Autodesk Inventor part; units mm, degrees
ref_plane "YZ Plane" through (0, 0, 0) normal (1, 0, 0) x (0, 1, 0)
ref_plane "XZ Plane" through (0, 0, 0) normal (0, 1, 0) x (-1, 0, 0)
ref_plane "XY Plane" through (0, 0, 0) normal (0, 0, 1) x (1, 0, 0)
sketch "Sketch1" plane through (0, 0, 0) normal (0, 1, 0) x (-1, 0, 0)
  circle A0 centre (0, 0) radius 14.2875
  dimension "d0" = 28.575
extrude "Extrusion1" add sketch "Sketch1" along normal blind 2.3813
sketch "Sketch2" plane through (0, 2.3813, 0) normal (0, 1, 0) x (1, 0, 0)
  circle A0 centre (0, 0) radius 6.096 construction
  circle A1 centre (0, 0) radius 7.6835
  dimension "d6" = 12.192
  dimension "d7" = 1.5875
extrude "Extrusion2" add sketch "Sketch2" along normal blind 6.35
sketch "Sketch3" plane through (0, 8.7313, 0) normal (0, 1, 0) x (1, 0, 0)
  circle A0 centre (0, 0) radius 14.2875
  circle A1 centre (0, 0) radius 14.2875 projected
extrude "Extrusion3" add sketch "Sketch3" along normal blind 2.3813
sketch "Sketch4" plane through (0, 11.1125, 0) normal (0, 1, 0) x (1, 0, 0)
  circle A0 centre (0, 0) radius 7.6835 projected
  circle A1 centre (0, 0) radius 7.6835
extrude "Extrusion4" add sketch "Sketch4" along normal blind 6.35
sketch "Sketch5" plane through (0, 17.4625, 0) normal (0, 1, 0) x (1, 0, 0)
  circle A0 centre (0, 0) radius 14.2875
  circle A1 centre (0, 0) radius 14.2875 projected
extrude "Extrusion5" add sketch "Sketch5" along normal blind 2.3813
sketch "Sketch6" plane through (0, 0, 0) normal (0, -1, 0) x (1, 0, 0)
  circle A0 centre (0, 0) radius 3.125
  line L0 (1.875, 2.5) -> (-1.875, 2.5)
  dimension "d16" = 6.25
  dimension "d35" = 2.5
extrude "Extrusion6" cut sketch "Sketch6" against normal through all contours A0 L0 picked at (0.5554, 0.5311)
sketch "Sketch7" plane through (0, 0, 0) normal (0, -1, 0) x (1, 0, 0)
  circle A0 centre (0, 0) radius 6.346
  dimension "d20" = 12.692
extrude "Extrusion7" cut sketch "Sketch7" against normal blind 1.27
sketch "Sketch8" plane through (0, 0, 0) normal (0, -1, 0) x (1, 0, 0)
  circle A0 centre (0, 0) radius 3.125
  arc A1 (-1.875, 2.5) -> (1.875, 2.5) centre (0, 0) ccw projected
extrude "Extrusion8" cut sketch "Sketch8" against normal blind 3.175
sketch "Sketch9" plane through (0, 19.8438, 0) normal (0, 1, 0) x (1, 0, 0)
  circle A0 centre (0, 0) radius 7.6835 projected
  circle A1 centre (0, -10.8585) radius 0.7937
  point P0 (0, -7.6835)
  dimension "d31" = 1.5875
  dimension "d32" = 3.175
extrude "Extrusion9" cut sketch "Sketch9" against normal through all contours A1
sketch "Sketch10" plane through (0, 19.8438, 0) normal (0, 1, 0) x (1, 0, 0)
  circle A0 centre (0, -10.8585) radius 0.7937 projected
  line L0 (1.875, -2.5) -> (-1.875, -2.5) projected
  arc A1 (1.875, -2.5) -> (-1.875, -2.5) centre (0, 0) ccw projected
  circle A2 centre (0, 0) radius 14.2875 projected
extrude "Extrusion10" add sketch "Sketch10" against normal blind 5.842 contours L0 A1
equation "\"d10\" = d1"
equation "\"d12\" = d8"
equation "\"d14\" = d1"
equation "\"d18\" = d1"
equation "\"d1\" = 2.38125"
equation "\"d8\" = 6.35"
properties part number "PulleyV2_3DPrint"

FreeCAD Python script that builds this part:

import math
import FreeCAD as App
import Part
import Sketcher
Q = App.Units.Quantity

doc = App.newDocument("Part")
body = doc.addObject("PartDesign::Body", "Body")

# Sketch on XZ plane
sketch1 = body.newObject("Sketcher::SketchObject", "Sketch")
sketch1.AttachmentSupport = (doc.getObject("XZ_Plane"), [""])
sketch1.MapMode = "FlatFace"
sketch1.addGeometry(Part.Circle(App.Vector(0, 0, 0), App.Vector(0, 0, 1), 14), False)
sketch1.addConstraint(Sketcher.Constraint("Coincident", 0, 3, -1, 1))
sketch1.addConstraint(Sketcher.Constraint("Diameter", 0, Q("1.125 in")))
pad1 = body.newObject("PartDesign::Pad", "Pad")
pad1.Profile = sketch1
pad1.Length = Q("0.093752 in")
pad1.Reversed = True

# Sketch on XZ plane
sketch2 = body.newObject("Sketcher::SketchObject", "Sketch001")
sketch2.AttachmentSupport = (doc.getObject("XZ_Plane"), [""])
sketch2.MapMode = "FlatFace"
sketch2.AttachmentOffset = App.Placement(App.Vector(0, 0, -0.093752 * 25.4), App.Rotation())
sketch2.addGeometry(Part.Circle(App.Vector(0, 0, 0), App.Vector(0, 0, 1), 8), False)
sketch2.addConstraint(Sketcher.Constraint("Coincident", 0, 3, -1, 1))
sketch2.addConstraint(Sketcher.Constraint("Diameter", 0, Q("0.605 in")))
pad2 = body.newObject("PartDesign::Pad", "Pad001")
pad2.Profile = sketch2
pad2.Length = Q("0.25 in")
pad2.Reversed = True

# Sketch on XZ plane
sketch3 = body.newObject("Sketcher::SketchObject", "Sketch002")
sketch3.AttachmentSupport = (doc.getObject("XZ_Plane"), [""])
sketch3.MapMode = "FlatFace"
sketch3.AttachmentOffset = App.Placement(App.Vector(0, 0, -0.343752 * 25.4), App.Rotation())
sketch3.addGeometry(Part.Circle(App.Vector(0, 0, 0), App.Vector(0, 0, 1), 14), False)
sketch3.addConstraint(Sketcher.Constraint("Coincident", 0, 3, -1, 1))
sketch3.addConstraint(Sketcher.Constraint("Diameter", 0, Q("1.125 in")))
pad3 = body.newObject("PartDesign::Pad", "Pad002")
pad3.Profile = sketch3
pad3.Length = Q("0.093752 in")
pad3.Reversed = True

# Sketch on XZ plane
sketch4 = body.newObject("Sketcher::SketchObject", "Sketch003")
sketch4.AttachmentSupport = (doc.getObject("XZ_Plane"), [""])
sketch4.MapMode = "FlatFace"
sketch4.AttachmentOffset = App.Placement(App.Vector(0, 0, -0.4375 * 25.4), App.Rotation())
sketch4.addGeometry(Part.Circle(App.Vector(0, 0, 0), App.Vector(0, 0, 1), 8), False)
sketch4.addConstraint(Sketcher.Constraint("Coincident", 0, 3, -1, 1))
sketch4.addConstraint(Sketcher.Constraint("Diameter", 0, Q("0.605 in")))
pad4 = body.newObject("PartDesign::Pad", "Pad003")
pad4.Profile = sketch4
pad4.Length = Q("0.25 in")
pad4.Reversed = True

# Sketch on XZ plane
sketch5 = body.newObject("Sketcher::SketchObject", "Sketch004")
sketch5.AttachmentSupport = (doc.getObject("XZ_Plane"), [""])
sketch5.MapMode = "FlatFace"
sketch5.AttachmentOffset = App.Placement(App.Vector(0, 0, -0.6875 * 25.4), App.Rotation())
sketch5.addGeometry(Part.Circle(App.Vector(0, 0, 0), App.Vector(0, 0, 1), 14), False)
sketch5.addConstraint(Sketcher.Constraint("Coincident", 0, 3, -1, 1))
sketch5.addConstraint(Sketcher.Constraint("Diameter", 0, Q("1.125 in")))
pad5 = body.newObject("PartDesign::Pad", "Pad004")
pad5.Profile = sketch5
pad5.Length = Q("0.093752 in")
pad5.Reversed = True

# Sketch on XZ plane
sketch6 = body.newObject("Sketcher::SketchObject", "Sketch005")
sketch6.AttachmentSupport = (doc.getObject("XZ_Plane"), [""])
sketch6.MapMode = "FlatFace"
sketch6.addGeometry(Part.ArcOfCircle(Part.Circle(App.Vector(0, 0, 0), App.Vector(0, 0, 1), 3.1), math.radians(127), math.radians(413)), False)
sketch6.addGeometry(Part.LineSegment(App.Vector(1.9, 2.5, 0), App.Vector(-1.9, 2.5, 0)), False)
sketch6.addConstraint(Sketcher.Constraint("Coincident", 0, 1, 1, 2))
sketch6.addConstraint(Sketcher.Constraint("Coincident", 1, 1, 0, 2))
sketch6.addConstraint(Sketcher.Constraint("Horizontal", 1))
sketch6.addConstraint(Sketcher.Constraint("Coincident", 0, 3, -1, 1))
sketch6.addConstraint(Sketcher.Constraint("Radius", 0, Q("3.125 mm")))
sketch6.addConstraint(Sketcher.Constraint("DistanceY", -1, 1, 0, 1, Q("2.5 mm")))
pocket1 = body.newObject("PartDesign::Pocket", "Pocket")
pocket1.Profile = sketch6
pocket1.Type = "ThroughAll"

# Sketch on XZ plane
sketch7 = body.newObject("Sketcher::SketchObject", "Sketch006")
sketch7.AttachmentSupport = (doc.getObject("XZ_Plane"), [""])
sketch7.MapMode = "FlatFace"
sketch7.addGeometry(Part.Circle(App.Vector(0, 0, 0), App.Vector(0, 0, 1), 6), False)
sketch7.addConstraint(Sketcher.Constraint("Coincident", 0, 3, -1, 1))
sketch7.addConstraint(Sketcher.Constraint("Diameter", 0, Q("12.692 mm")))
pocket2 = body.newObject("PartDesign::Pocket", "Pocket001")
pocket2.Profile = sketch7
pocket2.Length = Q("0.05 in")

# Sketch on XZ plane
sketch8 = body.newObject("Sketcher::SketchObject", "Sketch007")
sketch8.AttachmentSupport = (doc.getObject("XZ_Plane"), [""])
sketch8.MapMode = "FlatFace"
sketch8.addGeometry(Part.Circle(App.Vector(0, 0, 0), App.Vector(0, 0, 1), 3.1), False)
sketch8.addConstraint(Sketcher.Constraint("Coincident", 0, 3, -1, 1))
sketch8.addConstraint(Sketcher.Constraint("Diameter", 0, Q("6.25 mm")))
pocket3 = body.newObject("PartDesign::Pocket", "Pocket002")
pocket3.Profile = sketch8
pocket3.Length = Q("0.125 in")

# Sketch on XZ plane
sketch9 = body.newObject("Sketcher::SketchObject", "Sketch008")
sketch9.AttachmentSupport = (doc.getObject("XZ_Plane"), [""])
sketch9.MapMode = "FlatFace"
sketch9.AttachmentOffset = App.Placement(App.Vector(0, 0, -0.781252 * 25.4), App.Rotation())
sketch9.addGeometry(Part.Circle(App.Vector(0, 10.9, 0), App.Vector(0, 0, 1), 0.8), False)
sketch9.addConstraint(Sketcher.Constraint("PointOnObject", 0, 3, -2))
sketch9.addConstraint(Sketcher.Constraint("Diameter", 0, Q("0.0625 in")))
sketch9.addConstraint(Sketcher.Constraint("DistanceY", -1, 1, 0, 3, Q("0.4275 in")))
pocket4 = body.newObject("PartDesign::Pocket", "Pocket003")
pocket4.Profile = sketch9
pocket4.Type = "ThroughAll"
pocket4.Reversed = True

# Sketch on XZ plane
sketch10 = body.newObject("Sketcher::SketchObject", "Sketch009")
sketch10.AttachmentSupport = (doc.getObject("XZ_Plane"), [""])
sketch10.MapMode = "FlatFace"
sketch10.AttachmentOffset = App.Placement(App.Vector(0, 0, -0.781252 * 25.4), App.Rotation())
sketch10.addGeometry(Part.LineSegment(App.Vector(-1.9, 2.5, 0), App.Vector(1.9, 2.5, 0)), False)
sketch10.addGeometry(Part.ArcOfCircle(Part.Circle(App.Vector(0, 0, 0), App.Vector(0, 0, 1), 3.1), math.radians(127), math.radians(413)), False)
sketch10.addConstraint(Sketcher.Constraint("Coincident", 0, 1, 1, 1))
sketch10.addConstraint(Sketcher.Constraint("Coincident", 1, 2, 0, 2))
sketch10.addConstraint(Sketcher.Constraint("Horizontal", 0))
sketch10.addConstraint(Sketcher.Constraint("Coincident", 1, 3, -1, 1))
sketch10.addConstraint(Sketcher.Constraint("Radius", 1, Q("3.125 mm")))
sketch10.addConstraint(Sketcher.Constraint("DistanceX", 0, 1, 0, 2, Q("3.75 mm")))
pad6 = body.newObject("PartDesign::Pad", "Pad005")
pad6.Profile = sketch10
pad6.Length = Q("0.23 in")

doc.recompute()
